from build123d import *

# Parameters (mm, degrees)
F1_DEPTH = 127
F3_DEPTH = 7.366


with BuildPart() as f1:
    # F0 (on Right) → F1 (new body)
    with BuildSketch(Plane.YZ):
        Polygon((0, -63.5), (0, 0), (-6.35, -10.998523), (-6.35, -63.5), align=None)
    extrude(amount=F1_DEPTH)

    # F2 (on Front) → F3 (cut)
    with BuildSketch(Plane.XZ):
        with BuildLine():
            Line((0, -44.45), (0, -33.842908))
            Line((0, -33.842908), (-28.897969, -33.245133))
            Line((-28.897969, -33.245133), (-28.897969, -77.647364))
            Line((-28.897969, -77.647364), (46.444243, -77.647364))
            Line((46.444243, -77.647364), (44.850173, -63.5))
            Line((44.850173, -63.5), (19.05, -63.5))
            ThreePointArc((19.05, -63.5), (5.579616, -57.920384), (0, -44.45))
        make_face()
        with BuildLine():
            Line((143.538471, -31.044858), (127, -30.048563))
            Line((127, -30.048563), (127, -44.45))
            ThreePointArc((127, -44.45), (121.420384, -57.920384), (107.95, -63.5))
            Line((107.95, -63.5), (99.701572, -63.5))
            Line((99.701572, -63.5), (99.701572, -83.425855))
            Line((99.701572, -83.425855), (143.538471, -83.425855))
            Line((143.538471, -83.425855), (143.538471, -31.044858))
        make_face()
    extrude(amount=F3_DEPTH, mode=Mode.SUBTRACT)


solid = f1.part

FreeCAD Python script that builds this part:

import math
import FreeCAD as App
import Part
import Sketcher
from FreeCAD import Vector
Q = App.Units.Quantity


def add_polygon(sketch, points):
    """Adds a closed chain of lines whose ends are joined by coincident constraints."""
    first, n = sketch.GeometryCount, len(points)
    for a, b in zip(points, points[1:] + points[:1]):
        sketch.addGeometry(Part.LineSegment(App.Vector(*a, 0), App.Vector(*b, 0)), False)
    for i in range(n):
        sketch.addConstraint(Sketcher.Constraint("Coincident", first + i, 2, first + (i + 1) % n, 1))

doc = App.newDocument("Part")
body = doc.addObject("PartDesign::Body", "Body")

sketch1 = body.newObject("Sketcher::SketchObject", "Sketch")
sketch1.AttachmentSupport = (doc.getObject("YZ_Plane"), [""])
sketch1.MapMode = "FlatFace"
add_polygon(sketch1, [(0, -64), (0, 0), (-6, -11), (-6, -64)])
sketch1.addConstraint(Sketcher.Constraint("Vertical", 0))
sketch1.addConstraint(Sketcher.Constraint("Vertical", 2))
sketch1.addConstraint(Sketcher.Constraint("Horizontal", 3))
sketch1.addConstraint(Sketcher.Constraint("Coincident", 0, 2, -1, 1))
sketch1.addConstraint(Sketcher.Constraint("DistanceY", 0, 1, 0, 2, Q("2.5 in")))
sketch1.addConstraint(Sketcher.Constraint("Angle", 1, Q("-119.999999 deg")))
sketch1.addConstraint(Sketcher.Constraint("Distance", 1, Q("0.5 in")))
pad1 = body.newObject("PartDesign::Pad", "Pad")
pad1.Profile = sketch1
pad1.Length = Q("5 in")

sketch2 = body.newObject("Sketcher::SketchObject", "Sketch001")
sketch2.AttachmentSupport = (doc.getObject("XZ_Plane"), [""])
sketch2.MapMode = "FlatFace"
sketch2.addGeometry(Part.LineSegment(Vector(0, -44, 0), Vector(0, -34, 0)), False)
sketch2.addGeometry(Part.LineSegment(Vector(0, -34, 0), Vector(-29, -33, 0)), False)
sketch2.addGeometry(Part.LineSegment(Vector(-29, -33, 0), Vector(-29, -78, 0)), False)
sketch2.addGeometry(Part.LineSegment(Vector(-29, -78, 0), Vector(46, -78, 0)), False)
sketch2.addGeometry(Part.LineSegment(Vector(46, -78, 0), Vector(45, -64, 0)), False)
sketch2.addGeometry(Part.LineSegment(Vector(45, -64, 0), Vector(19, -64, 0)), False)
sketch2.addGeometry(Part.ArcOfCircle(Part.Circle(Vector(19, -44, 0), Vector(0, 0, 1), 19), math.radians(-180), math.radians(-90)), False)
sketch2.addGeometry(Part.LineSegment(Vector(144, -31, 0), Vector(127, -30, 0)), False)
sketch2.addGeometry(Part.LineSegment(Vector(127, -30, 0), Vector(127, -44, 0)), False)
sketch2.addGeometry(Part.ArcOfCircle(Part.Circle(Vector(108, -44, 0), Vector(0, 0, 1), 19), math.radians(-90), math.radians(0)), False)
sketch2.addGeometry(Part.LineSegment(Vector(108, -64, 0), Vector(100, -64, 0)), False)
sketch2.addGeometry(Part.LineSegment(Vector(100, -64, 0), Vector(100, -83, 0)), False)
sketch2.addGeometry(Part.LineSegment(Vector(100, -83, 0), Vector(144, -83, 0)), False)
sketch2.addGeometry(Part.LineSegment(Vector(144, -83, 0), Vector(144, -31, 0)), False)
sketch2.addConstraint(Sketcher.Constraint("Coincident", 0, 2, 1, 1))
sketch2.addConstraint(Sketcher.Constraint("Coincident", 1, 2, 2, 1))
sketch2.addConstraint(Sketcher.Constraint("Coincident", 2, 2, 3, 1))
sketch2.addConstraint(Sketcher.Constraint("Coincident", 3, 2, 4, 1))
sketch2.addConstraint(Sketcher.Constraint("Coincident", 4, 2, 5, 1))
sketch2.addConstraint(Sketcher.Constraint("Tangent", 5, 2, 6, 2))
sketch2.addConstraint(Sketcher.Constraint("Tangent", 6, 1, 0, 1))
sketch2.addConstraint(Sketcher.Constraint("Coincident", 7, 2, 8, 1))
sketch2.addConstraint(Sketcher.Constraint("Tangent", 8, 2, 9, 2))
sketch2.addConstraint(Sketcher.Constraint("Tangent", 9, 1, 10, 1))
sketch2.addConstraint(Sketcher.Constraint("Coincident", 10, 2, 11, 1))
sketch2.addConstraint(Sketcher.Constraint("Coincident", 11, 2, 12, 1))
sketch2.addConstraint(Sketcher.Constraint("Coincident", 12, 2, 13, 1))
sketch2.addConstraint(Sketcher.Constraint("Coincident", 13, 2, 7, 1))
sketch2.addConstraint(Sketcher.Constraint("Vertical", 0))
sketch2.addConstraint(Sketcher.Constraint("Vertical", 2))
sketch2.addConstraint(Sketcher.Constraint("Horizontal", 3))
sketch2.addConstraint(Sketcher.Constraint("Horizontal", 5))
sketch2.addConstraint(Sketcher.Constraint("Vertical", 8))
sketch2.addConstraint(Sketcher.Constraint("Horizontal", 10))
sketch2.addConstraint(Sketcher.Constraint("Vertical", 11))
sketch2.addConstraint(Sketcher.Constraint("Horizontal", 12))
sketch2.addConstraint(Sketcher.Constraint("Vertical", 13))
sketch2.addConstraint(Sketcher.Constraint("Equal", 6, 9))
sketch2.addConstraint(Sketcher.Constraint("PointOnObject", 0, 2, -2))
sketch2.addConstraint(Sketcher.Constraint("Horizontal", 6, 3, 9, 3))
sketch2.addConstraint(Sketcher.Constraint("Radius", 6, Q("0.75 in")))
sketch2.addConstraint(Sketcher.Constraint("DistanceX", -1, 1, 7, 2, Q("5 in")))
sketch2.addConstraint(Sketcher.Constraint("DistanceY", 4, 2, -1, 1, Q("2.5 in")))
sketch2.addConstraint(Sketcher.Constraint("DistanceX", 12, 1, 12, 2, 43.836899))
sketch2.addConstraint(Sketcher.Constraint("DistanceX", 10, 2, 10, 1, 8.248428))
sketch2.addConstraint(Sketcher.Constraint("DistanceY", 2, 2, 2, 1, 44.402231))
sketch2.addConstraint(Sketcher.Constraint("DistanceY", 3, 2, 7, 2, 47.598801))
sketch2.addConstraint(Sketcher.Constraint("DistanceX", 4, 2, 10, 2, 54.851399))
sketch2.addConstraint(Sketcher.Constraint("Distance", 1, 28.904151))
sketch2.addConstraint(Sketcher.Constraint("DistanceX", 3, 1, 3, 2, 75.342212))
sketch2.addConstraint(Sketcher.Constraint("DistanceY", 0, 1, 0, 2, 10.607092))
sketch2.addConstraint(Sketcher.Constraint("DistanceY", 8, 2, 8, 1, 14.401437))
sketch2.addConstraint(Sketcher.Constraint("DistanceY", 11, 2, 11, 1, 19.925855))
sketch2.addConstraint(Sketcher.Constraint("DistanceY", 13, 1, 13, 2, 52.380997))
pocket1 = body.newObject("PartDesign::Pocket", "Pocket")
pocket1.Profile = sketch2
pocket1.Length = Q("0.29 in")
pocket1.Reversed = True

doc.recompute()
